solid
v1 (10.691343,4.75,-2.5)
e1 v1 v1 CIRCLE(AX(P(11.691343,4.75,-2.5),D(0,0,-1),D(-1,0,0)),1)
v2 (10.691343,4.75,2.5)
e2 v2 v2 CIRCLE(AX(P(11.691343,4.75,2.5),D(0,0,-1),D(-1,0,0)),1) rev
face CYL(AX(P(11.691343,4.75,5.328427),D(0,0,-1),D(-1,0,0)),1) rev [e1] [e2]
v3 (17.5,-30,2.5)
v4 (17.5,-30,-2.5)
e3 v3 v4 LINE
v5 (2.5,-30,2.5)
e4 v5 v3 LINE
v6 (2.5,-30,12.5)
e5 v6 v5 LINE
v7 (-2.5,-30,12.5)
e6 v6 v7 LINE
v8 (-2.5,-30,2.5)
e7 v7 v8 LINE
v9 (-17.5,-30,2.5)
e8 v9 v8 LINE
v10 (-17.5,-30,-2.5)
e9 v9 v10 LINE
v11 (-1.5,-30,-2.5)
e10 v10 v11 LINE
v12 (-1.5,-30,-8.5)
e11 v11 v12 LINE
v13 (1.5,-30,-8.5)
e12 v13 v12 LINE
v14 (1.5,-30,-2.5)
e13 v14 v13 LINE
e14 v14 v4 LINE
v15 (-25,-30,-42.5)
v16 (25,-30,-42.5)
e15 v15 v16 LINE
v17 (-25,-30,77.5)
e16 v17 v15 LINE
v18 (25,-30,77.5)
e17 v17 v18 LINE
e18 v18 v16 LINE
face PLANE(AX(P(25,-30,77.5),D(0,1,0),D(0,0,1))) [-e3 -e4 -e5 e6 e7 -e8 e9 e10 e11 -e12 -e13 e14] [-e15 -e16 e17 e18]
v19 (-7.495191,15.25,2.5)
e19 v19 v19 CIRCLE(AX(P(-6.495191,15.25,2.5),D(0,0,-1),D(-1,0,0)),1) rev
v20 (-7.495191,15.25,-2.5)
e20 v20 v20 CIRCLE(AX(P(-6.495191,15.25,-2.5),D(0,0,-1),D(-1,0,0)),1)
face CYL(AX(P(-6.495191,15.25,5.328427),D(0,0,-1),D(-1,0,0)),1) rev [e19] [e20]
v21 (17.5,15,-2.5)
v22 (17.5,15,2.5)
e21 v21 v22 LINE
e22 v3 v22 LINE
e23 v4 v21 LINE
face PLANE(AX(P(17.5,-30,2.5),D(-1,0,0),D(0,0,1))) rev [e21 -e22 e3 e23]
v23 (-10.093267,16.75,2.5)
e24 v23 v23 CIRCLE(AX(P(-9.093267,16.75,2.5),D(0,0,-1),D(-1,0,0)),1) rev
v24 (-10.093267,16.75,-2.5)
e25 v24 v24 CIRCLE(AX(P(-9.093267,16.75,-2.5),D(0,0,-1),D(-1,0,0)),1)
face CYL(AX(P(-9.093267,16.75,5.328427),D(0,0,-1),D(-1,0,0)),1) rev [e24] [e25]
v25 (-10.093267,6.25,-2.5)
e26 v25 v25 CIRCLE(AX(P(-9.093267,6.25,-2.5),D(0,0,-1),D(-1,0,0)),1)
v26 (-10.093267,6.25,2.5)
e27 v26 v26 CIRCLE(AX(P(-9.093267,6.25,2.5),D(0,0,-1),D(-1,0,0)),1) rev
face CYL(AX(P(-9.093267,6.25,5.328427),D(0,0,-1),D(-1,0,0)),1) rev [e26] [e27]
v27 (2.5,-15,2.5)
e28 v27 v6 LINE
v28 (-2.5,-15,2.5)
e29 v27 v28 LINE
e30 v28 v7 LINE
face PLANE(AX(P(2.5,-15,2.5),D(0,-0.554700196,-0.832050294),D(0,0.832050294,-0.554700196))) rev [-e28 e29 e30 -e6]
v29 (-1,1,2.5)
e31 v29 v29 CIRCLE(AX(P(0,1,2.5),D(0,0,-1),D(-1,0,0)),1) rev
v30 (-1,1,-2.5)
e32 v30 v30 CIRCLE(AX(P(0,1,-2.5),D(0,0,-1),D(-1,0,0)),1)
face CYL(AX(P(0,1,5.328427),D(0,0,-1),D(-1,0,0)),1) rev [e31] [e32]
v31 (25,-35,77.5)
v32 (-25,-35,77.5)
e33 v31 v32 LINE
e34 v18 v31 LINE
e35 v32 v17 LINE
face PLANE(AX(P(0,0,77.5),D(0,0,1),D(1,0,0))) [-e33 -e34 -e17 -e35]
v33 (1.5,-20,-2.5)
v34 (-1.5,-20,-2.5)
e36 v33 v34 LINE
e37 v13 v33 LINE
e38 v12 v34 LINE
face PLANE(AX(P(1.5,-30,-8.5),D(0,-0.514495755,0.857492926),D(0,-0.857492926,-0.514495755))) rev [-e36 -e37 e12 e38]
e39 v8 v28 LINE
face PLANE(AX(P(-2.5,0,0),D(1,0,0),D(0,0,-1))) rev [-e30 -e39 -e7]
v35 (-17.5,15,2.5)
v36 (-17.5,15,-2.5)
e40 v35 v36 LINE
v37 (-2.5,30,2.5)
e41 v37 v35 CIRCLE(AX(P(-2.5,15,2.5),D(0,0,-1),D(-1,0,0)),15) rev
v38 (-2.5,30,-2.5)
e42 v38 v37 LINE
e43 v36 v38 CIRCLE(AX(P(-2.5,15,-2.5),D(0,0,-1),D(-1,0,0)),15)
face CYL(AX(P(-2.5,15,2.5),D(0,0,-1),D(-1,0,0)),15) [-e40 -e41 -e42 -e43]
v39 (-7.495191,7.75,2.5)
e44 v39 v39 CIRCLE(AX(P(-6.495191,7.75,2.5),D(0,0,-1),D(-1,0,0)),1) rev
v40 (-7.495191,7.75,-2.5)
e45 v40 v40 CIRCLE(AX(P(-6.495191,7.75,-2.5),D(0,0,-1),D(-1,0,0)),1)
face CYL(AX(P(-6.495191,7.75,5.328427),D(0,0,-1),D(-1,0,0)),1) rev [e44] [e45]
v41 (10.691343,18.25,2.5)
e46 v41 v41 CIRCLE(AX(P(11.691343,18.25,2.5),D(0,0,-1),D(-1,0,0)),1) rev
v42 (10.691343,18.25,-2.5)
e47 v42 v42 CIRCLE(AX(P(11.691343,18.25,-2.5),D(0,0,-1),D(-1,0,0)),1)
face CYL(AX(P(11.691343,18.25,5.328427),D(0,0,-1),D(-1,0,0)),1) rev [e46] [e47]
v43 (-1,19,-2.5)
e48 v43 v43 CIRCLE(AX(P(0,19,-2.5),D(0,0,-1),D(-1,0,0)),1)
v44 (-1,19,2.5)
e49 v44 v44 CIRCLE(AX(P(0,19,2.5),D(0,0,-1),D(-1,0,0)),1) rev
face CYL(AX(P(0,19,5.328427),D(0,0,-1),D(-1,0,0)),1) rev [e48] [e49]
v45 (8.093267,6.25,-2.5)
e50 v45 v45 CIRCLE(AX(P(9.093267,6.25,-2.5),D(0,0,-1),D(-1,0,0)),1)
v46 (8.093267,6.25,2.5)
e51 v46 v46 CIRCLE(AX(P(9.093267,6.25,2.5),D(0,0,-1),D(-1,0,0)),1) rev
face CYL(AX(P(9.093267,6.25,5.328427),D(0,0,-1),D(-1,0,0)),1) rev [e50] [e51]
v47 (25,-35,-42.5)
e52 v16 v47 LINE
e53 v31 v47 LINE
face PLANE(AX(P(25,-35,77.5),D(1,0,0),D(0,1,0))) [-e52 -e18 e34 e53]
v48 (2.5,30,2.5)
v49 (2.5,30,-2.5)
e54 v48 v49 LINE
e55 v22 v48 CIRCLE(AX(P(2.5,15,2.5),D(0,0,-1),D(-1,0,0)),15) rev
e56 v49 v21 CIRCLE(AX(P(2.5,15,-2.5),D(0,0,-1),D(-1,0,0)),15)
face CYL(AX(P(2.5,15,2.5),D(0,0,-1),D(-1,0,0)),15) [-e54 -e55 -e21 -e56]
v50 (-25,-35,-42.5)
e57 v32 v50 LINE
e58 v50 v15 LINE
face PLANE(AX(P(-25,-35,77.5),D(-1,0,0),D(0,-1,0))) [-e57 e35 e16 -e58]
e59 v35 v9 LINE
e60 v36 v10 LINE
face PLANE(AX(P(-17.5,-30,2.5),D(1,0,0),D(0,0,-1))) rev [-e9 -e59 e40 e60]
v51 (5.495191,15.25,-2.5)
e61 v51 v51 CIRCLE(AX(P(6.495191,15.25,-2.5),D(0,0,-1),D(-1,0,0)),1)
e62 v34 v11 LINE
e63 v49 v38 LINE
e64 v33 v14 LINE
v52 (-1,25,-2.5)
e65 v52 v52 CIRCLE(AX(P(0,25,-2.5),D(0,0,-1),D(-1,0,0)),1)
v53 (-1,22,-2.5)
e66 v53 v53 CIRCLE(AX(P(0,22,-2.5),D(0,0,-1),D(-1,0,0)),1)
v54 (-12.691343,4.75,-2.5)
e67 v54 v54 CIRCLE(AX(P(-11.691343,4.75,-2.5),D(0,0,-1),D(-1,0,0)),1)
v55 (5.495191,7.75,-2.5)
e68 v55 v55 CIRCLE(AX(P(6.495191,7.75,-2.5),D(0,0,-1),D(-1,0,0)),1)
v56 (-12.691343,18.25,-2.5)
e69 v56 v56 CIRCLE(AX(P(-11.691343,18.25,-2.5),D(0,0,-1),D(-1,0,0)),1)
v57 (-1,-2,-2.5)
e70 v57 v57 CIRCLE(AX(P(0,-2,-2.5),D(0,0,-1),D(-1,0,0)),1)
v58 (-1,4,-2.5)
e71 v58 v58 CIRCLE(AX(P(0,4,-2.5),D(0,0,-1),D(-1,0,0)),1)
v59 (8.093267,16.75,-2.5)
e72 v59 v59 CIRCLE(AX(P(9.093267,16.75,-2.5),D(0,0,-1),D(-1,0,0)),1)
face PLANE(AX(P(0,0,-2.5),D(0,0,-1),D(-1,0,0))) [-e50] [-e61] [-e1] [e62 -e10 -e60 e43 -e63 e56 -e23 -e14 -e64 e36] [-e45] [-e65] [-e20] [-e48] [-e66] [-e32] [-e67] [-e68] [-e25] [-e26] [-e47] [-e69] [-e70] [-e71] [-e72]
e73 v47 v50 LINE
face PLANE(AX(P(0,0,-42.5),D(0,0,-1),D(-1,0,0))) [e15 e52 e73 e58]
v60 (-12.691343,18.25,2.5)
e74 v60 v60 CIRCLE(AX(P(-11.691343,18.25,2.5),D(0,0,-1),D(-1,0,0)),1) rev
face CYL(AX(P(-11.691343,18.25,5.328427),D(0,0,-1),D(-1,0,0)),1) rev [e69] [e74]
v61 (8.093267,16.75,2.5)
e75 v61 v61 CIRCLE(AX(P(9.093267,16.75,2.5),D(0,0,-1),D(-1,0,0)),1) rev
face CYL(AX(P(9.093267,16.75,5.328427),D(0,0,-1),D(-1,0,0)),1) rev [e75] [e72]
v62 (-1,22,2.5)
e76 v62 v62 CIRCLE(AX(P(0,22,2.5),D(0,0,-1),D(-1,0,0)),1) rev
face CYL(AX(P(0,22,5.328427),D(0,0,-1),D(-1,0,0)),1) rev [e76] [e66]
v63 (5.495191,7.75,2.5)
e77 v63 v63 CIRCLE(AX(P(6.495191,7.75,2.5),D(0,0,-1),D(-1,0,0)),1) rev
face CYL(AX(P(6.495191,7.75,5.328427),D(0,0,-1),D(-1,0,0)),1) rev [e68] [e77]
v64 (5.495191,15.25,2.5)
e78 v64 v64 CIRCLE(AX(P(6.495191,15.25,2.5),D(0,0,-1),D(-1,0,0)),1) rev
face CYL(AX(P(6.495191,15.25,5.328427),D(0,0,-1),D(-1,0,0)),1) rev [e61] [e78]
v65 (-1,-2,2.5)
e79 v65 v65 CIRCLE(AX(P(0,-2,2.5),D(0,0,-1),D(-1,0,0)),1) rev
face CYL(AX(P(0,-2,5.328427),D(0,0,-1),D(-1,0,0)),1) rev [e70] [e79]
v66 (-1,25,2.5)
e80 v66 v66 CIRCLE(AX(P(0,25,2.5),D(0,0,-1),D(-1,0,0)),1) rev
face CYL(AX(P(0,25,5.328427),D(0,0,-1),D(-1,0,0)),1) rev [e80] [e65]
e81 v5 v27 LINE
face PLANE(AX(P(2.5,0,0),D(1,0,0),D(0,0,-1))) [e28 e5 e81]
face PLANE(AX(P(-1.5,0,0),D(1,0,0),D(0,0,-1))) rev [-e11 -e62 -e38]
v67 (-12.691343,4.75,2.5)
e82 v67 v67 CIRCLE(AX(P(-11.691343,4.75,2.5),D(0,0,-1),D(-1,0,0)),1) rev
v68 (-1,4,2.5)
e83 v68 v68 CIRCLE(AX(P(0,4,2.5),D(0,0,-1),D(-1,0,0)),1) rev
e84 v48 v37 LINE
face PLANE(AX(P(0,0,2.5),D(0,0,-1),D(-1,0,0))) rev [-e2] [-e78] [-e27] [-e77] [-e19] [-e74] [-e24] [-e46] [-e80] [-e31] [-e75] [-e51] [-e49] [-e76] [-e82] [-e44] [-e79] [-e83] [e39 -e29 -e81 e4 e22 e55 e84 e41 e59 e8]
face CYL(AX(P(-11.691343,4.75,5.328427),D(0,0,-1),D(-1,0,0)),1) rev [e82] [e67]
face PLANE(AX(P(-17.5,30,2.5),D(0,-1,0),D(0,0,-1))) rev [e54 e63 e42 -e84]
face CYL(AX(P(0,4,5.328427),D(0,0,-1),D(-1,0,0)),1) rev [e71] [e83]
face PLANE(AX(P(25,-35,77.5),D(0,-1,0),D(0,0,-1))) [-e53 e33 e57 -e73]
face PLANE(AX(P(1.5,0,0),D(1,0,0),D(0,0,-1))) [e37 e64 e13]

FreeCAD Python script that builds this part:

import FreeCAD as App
import Part
import Sketcher

V = App.Vector


def edges_at(feature, points):
    """Names of the edges that pass closest to the given points."""
    edges = feature.Shape.Edges
    near = lambda p: min(range(len(edges)), key=lambda i: edges[i].distToShape(Part.Vertex(*p))[0])
    return sorted({f"Edge{near(p) + 1}" for p in points})

doc = App.newDocument("Part")
body = doc.addObject("PartDesign::Body", "Body")

# Sketch on XY plane
sketch1 = body.newObject("Sketcher::SketchObject", "Sketch")
sketch1.AttachmentSupport = (doc.getObject("XY_Plane"), [""])
sketch1.MapMode = "FlatFace"
sketch1.addGeometry([
    Part.LineSegment(V(-18, 30, 0), V(-18, -30, 0)),
    Part.LineSegment(V(-18, -30, 0), V(18, -30, 0)),
    Part.LineSegment(V(18, -30, 0), V(18, 30, 0)),
    Part.LineSegment(V(18, 30, 0), V(-18, 30, 0)),
], False)
sketch1.addConstraint([
    Sketcher.Constraint("Coincident", 0, 2, 1, 1),
    Sketcher.Constraint("Coincident", 1, 2, 2, 1),
    Sketcher.Constraint("Coincident", 2, 2, 3, 1),
    Sketcher.Constraint("Coincident", 3, 2, 0, 1),
    Sketcher.Constraint("Vertical", 0),
    Sketcher.Constraint("Horizontal", 1),
    Sketcher.Constraint("Vertical", 2),
    Sketcher.Constraint("Horizontal", 3),
    Sketcher.Constraint("Symmetric", 0, 2, 2, 2, -1, 1),
    Sketcher.Constraint("DistanceX", 1, 1, 1, 2, 35.0),
    Sketcher.Constraint("DistanceY", 0, 2, 0, 1, 60.0),
])
pad1 = body.newObject("PartDesign::Pad", "Pad")
pad1.Profile = sketch1
pad1.Length = 5
pad1.Midplane = True

# Sketch on XY plane
sketch2 = body.newObject("Sketcher::SketchObject", "Sketch001")
sketch2.AttachmentSupport = (doc.getObject("XY_Plane"), [""])
sketch2.MapMode = "FlatFace"
sketch2.AttachmentOffset = App.Placement(V(0, 0, -2.5), App.Rotation())
sketch2.addGeometry([
    Part.Circle(V(0, 25, 0), V(0, 0, 1), 1),  # 0
    Part.Circle(V(0, 22, 0), V(0, 0, 1), 1),  # 1
    Part.Circle(V(0, 19, 0), V(0, 0, 1), 1),  # 2
    Part.Circle(V(-11.7, 18.2, 0), V(0, 0, 1), 1),  # 3
    Part.Circle(V(-9.1, 16.8, 0), V(0, 0, 1), 1),  # 4
    Part.Circle(V(-6.5, 15.2, 0), V(0, 0, 1), 1),  # 5
    Part.Circle(V(-11.7, 4.8, 0), V(0, 0, 1), 1),  # 6
    Part.Circle(V(-9.1, 6.2, 0), V(0, 0, 1), 1),  # 7
    Part.Circle(V(-6.5, 7.8, 0), V(0, 0, 1), 1),  # 8
    Part.Circle(V(0, -2, 0), V(0, 0, 1), 1),  # 9
    Part.Circle(V(0, 1, 0), V(0, 0, 1), 1),  # 10
    Part.Circle(V(0, 4, 0), V(0, 0, 1), 1),  # 11
    Part.Circle(V(11.7, 4.8, 0), V(0, 0, 1), 1),  # 12
    Part.Circle(V(9.1, 6.2, 0), V(0, 0, 1), 1),  # 13
    Part.Circle(V(6.5, 7.8, 0), V(0, 0, 1), 1),  # 14
    Part.Circle(V(11.7, 18.2, 0), V(0, 0, 1), 1),  # 15
    Part.Circle(V(9.1, 16.8, 0), V(0, 0, 1), 1),  # 16
    Part.Circle(V(6.5, 15.2, 0), V(0, 0, 1), 1),  # 17
], False)
sketch2.addConstraint([
    Sketcher.Constraint("Equal", 0, 1),
    Sketcher.Constraint("Equal", 1, 2),
    Sketcher.Constraint("Equal", 2, 3),
    Sketcher.Constraint("Equal", 3, 4),
    Sketcher.Constraint("Equal", 4, 5),
    Sketcher.Constraint("Equal", 5, 6),
    Sketcher.Constraint("Equal", 6, 7),
    Sketcher.Constraint("Equal", 7, 8),
    Sketcher.Constraint("Equal", 8, 9),
    Sketcher.Constraint("Equal", 9, 10),
    Sketcher.Constraint("Equal", 10, 11),
    Sketcher.Constraint("Equal", 11, 12),
    Sketcher.Constraint("Equal", 12, 13),
    Sketcher.Constraint("Equal", 13, 14),
    Sketcher.Constraint("Equal", 14, 15),
    Sketcher.Constraint("Equal", 15, 16),
    Sketcher.Constraint("Equal", 16, 17),
    Sketcher.Constraint("Symmetric", 6, 3, 12, 3, -2),
    Sketcher.Constraint("Symmetric", 7, 3, 13, 3, -2),
    Sketcher.Constraint("Symmetric", 8, 3, 14, 3, -2),
    Sketcher.Constraint("Symmetric", 3, 3, 15, 3, -2),
    Sketcher.Constraint("Symmetric", 4, 3, 16, 3, -2),
    Sketcher.Constraint("Symmetric", 5, 3, 17, 3, -2),
    Sketcher.Constraint("PointOnObject", 0, 3, -2),
    Sketcher.Constraint("PointOnObject", 1, 3, -2),
    Sketcher.Constraint("PointOnObject", 2, 3, -2),
    Sketcher.Constraint("PointOnObject", 9, 3, -2),
    Sketcher.Constraint("PointOnObject", 10, 3, -2),
    Sketcher.Constraint("PointOnObject", 11, 3, -2),
    Sketcher.Constraint("Vertical", 3, 3, 6, 3),
    Sketcher.Constraint("Vertical", 4, 3, 7, 3),
    Sketcher.Constraint("Vertical", 5, 3, 8, 3),
    Sketcher.Constraint("Diameter", 0, 2.0),
    Sketcher.Constraint("DistanceY", -1, 1, 0, 3, 25.0),
    Sketcher.Constraint("DistanceY", -1, 1, 1, 3, 22.0),
    Sketcher.Constraint("DistanceY", -1, 1, 2, 3, 19.0),
    Sketcher.Constraint("DistanceY", 9, 3, -1, 1, 2.0),
    Sketcher.Constraint("DistanceY", -1, 1, 10, 3, 1.0),
    Sketcher.Constraint("DistanceY", -1, 1, 11, 3, 4.0),
    Sketcher.Constraint("DistanceY", 5, 3, 3, 3, 3.0),
    Sketcher.Constraint("DistanceY", 6, 3, 4, 3, 12.0),
    Sketcher.Constraint("DistanceY", 7, 3, 5, 3, 9.0),
    Sketcher.Constraint("DistanceY", 6, 3, 8, 3, 3.0),
    Sketcher.Constraint("DistanceY", 4, 3, 3, 3, 1.5),
    Sketcher.Constraint("DistanceY", -1, 1, 3, 3, 18.25),
    Sketcher.Constraint("DistanceX", 5, 3, -1, 1, 6.495191),
    Sketcher.Constraint("DistanceX", 3, 3, -1, 1, 11.691343),
    Sketcher.Constraint("DistanceX", 4, 3, -1, 1, 9.093267),
])
pocket1 = body.newObject("PartDesign::Pocket", "Pocket")
pocket1.Profile = sketch2
pocket1.Length = 5
pocket1.Reversed = True
doc.recompute()

fillet = body.newObject("PartDesign::Fillet", "Fillet")
fillet.Base = (pocket1, edges_at(pocket1, [(-17.5, 30, 0), (17.5, 30, 0)]))
fillet.Radius = 15

# Sketch on XY plane
sketch3 = body.newObject("Sketcher::SketchObject", "Sketch002")
sketch3.AttachmentSupport = (doc.getObject("XY_Plane"), [""])
sketch3.MapMode = "FlatFace"
sketch3.AttachmentOffset = App.Placement(V(0, 0, -2.5), App.Rotation())
sketch3.addGeometry([
    Part.LineSegment(V(25, -30, 0), V(25, -35, 0)),
    Part.LineSegment(V(25, -35, 0), V(-25, -35, 0)),
    Part.LineSegment(V(-25, -35, 0), V(-25, -30, 0)),
    Part.LineSegment(V(-25, -30, 0), V(25, -30, 0)),
], False)
sketch3.addConstraint([
    Sketcher.Constraint("Coincident", 0, 2, 1, 1),
    Sketcher.Constraint("Coincident", 1, 2, 2, 1),
    Sketcher.Constraint("Coincident", 2, 2, 3, 1),
    Sketcher.Constraint("Coincident", 3, 2, 0, 1),
    Sketcher.Constraint("Vertical", 0),
    Sketcher.Constraint("Horizontal", 1),
    Sketcher.Constraint("Vertical", 2),
    Sketcher.Constraint("Horizontal", 3),
    Sketcher.Constraint("DistanceX", 1, 2, 1, 1, 50.0),
    Sketcher.Constraint("DistanceY", 0, 2, 0, 1, 5.0),
    Sketcher.Constraint("DistanceX", -1, 1, 0, 2, 25.0),
    Sketcher.Constraint("DistanceY", 0, 2, -1, 1, 35.0),
])
pad2 = body.newObject("PartDesign::Pad", "Pad001")
pad2.Profile = sketch3
pad2.Length = 80

# Sketch on YZ plane
sketch4 = body.newObject("Sketcher::SketchObject", "Sketch003")
sketch4.AttachmentSupport = (doc.getObject("YZ_Plane"), [""])
sketch4.MapMode = "FlatFace"
sketch4.addGeometry([
    Part.LineSegment(V(-30, 12, 0), V(-30, 2, 0)),
    Part.LineSegment(V(-30, 2, 0), V(-15, 2, 0)),
    Part.LineSegment(V(-15, 2, 0), V(-30, 12, 0)),
], False)
sketch4.addConstraint([
    Sketcher.Constraint("Coincident", 0, 2, 1, 1),
    Sketcher.Constraint("Coincident", 1, 2, 2, 1),
    Sketcher.Constraint("Coincident", 2, 2, 0, 1),
    Sketcher.Constraint("Vertical", 0),
    Sketcher.Constraint("Horizontal", 1),
    Sketcher.Constraint("DistanceX", 1, 1, 1, 2, 15.0),
    Sketcher.Constraint("DistanceY", 0, 2, 0, 1, 10.0),
    Sketcher.Constraint("DistanceX", 0, 2, -1, 1, 30.0),
    Sketcher.Constraint("DistanceY", -1, 1, 0, 2, 2.5),
])
pad3 = body.newObject("PartDesign::Pad", "Pad002")
pad3.Profile = sketch4
pad3.Length = 5
pad3.Midplane = True

# Sketch on XY plane
sketch5 = body.newObject("Sketcher::SketchObject", "Sketch004")
sketch5.AttachmentSupport = (doc.getObject("XY_Plane"), [""])
sketch5.MapMode = "FlatFace"
sketch5.AttachmentOffset = App.Placement(V(0, 0, -2.5), App.Rotation())
sketch5.addGeometry([
    Part.LineSegment(V(25, -30, 0), V(25, -35, 0)),
    Part.LineSegment(V(25, -35, 0), V(-25, -35, 0)),
    Part.LineSegment(V(-25, -35, 0), V(-25, -30, 0)),
    Part.LineSegment(V(-25, -30, 0), V(25, -30, 0)),
], False)
sketch5.addConstraint([
    Sketcher.Constraint("Coincident", 0, 2, 1, 1),
    Sketcher.Constraint("Coincident", 1, 2, 2, 1),
    Sketcher.Constraint("Coincident", 2, 2, 3, 1),
    Sketcher.Constraint("Coincident", 3, 2, 0, 1),
    Sketcher.Constraint("Vertical", 0),
    Sketcher.Constraint("Horizontal", 1),
    Sketcher.Constraint("Vertical", 2),
    Sketcher.Constraint("Horizontal", 3),
    Sketcher.Constraint("DistanceX", 1, 2, 1, 1, 50.0),
    Sketcher.Constraint("DistanceY", 0, 2, 0, 1, 5.0),
    Sketcher.Constraint("DistanceX", -1, 1, 0, 2, 25.0),
    Sketcher.Constraint("DistanceY", 0, 2, -1, 1, 35.0),
])
pad4 = body.newObject("PartDesign::Pad", "Pad003")
pad4.Profile = sketch5
pad4.Length = 40
pad4.Reversed = True

# Sketch on YZ plane
sketch6 = body.newObject("Sketcher::SketchObject", "Sketch005")
sketch6.AttachmentSupport = (doc.getObject("YZ_Plane"), [""])
sketch6.MapMode = "FlatFace"
sketch6.addGeometry([
    Part.LineSegment(V(-30, -2, 0), V(-30, -8, 0)),
    Part.LineSegment(V(-30, -8, 0), V(-20, -2, 0)),
    Part.LineSegment(V(-20, -2, 0), V(-30, -2, 0)),
], False)
sketch6.addConstraint([
    Sketcher.Constraint("Coincident", 0, 2, 1, 1),
    Sketcher.Constraint("Coincident", 1, 2, 2, 1),
    Sketcher.Constraint("Coincident", 2, 2, 0, 1),
    Sketcher.Constraint("Vertical", 0),
    Sketcher.Constraint("Horizontal", 2),
    Sketcher.Constraint("DistanceX", 2, 2, 2, 1, 10.0),
    Sketcher.Constraint("DistanceY", 0, 2, 0, 1, 6.0),
    Sketcher.Constraint("DistanceX", 0, 2, -1, 1, 30.0),
    Sketcher.Constraint("DistanceY", 0, 2, -1, 1, 8.5),
])
pad5 = body.newObject("PartDesign::Pad", "Pad004")
pad5.Profile = sketch6
pad5.Length = 3
pad5.Midplane = True

doc.recompute()
